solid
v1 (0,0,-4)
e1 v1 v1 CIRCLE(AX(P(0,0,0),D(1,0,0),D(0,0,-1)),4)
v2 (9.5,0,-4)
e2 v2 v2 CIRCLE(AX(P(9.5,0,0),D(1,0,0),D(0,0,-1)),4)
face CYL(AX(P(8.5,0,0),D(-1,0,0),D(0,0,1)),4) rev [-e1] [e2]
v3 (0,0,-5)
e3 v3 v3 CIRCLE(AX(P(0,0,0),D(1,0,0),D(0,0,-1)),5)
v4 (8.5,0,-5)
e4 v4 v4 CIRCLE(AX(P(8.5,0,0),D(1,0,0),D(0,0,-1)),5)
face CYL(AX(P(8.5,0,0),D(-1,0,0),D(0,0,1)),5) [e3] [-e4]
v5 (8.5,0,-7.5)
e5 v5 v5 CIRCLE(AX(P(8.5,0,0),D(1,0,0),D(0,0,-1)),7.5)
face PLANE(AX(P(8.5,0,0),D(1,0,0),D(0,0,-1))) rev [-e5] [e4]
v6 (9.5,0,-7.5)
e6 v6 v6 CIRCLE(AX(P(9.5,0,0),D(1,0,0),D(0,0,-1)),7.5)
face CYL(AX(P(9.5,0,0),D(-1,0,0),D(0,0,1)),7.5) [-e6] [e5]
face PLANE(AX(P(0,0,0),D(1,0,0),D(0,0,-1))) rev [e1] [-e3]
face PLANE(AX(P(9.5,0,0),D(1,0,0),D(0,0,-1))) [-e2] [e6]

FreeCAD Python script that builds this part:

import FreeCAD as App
import Part
import Sketcher
Q = App.Units.Quantity

doc = App.newDocument("Part")
body = doc.addObject("PartDesign::Body", "Body")

# Sketch on YZ plane
sketch1 = doc.addObject("Sketcher::SketchObject", "Sketch")
body.addObject(sketch1)
sketch1.AttachmentSupport = (doc.YZ_Plane, [""])
sketch1.MapMode = "FlatFace"
sketch1.addGeometry([
    Part.Circle(App.Vector(0, 0, 0), App.Vector(0, 0, 1), 5),
    Part.Circle(App.Vector(0, 0, 0), App.Vector(0, 0, 1), 4),
], False)
sketch1.addConstraint([
    Sketcher.Constraint("Coincident", 0, 3, -1, 1),
    Sketcher.Constraint("Coincident", 1, 3, -1, 1),
    Sketcher.Constraint("Diameter", 0, Q("10 mm")),
    Sketcher.Constraint("Diameter", 1, Q("8 mm")),
])
pad1 = doc.addObject("PartDesign::Pad", "Pad")
body.addObject(pad1)
pad1.Profile = sketch1
pad1.Length = 8.5

# Sketch on YZ plane
sketch2 = doc.addObject("Sketcher::SketchObject", "Sketch001")
body.addObject(sketch2)
sketch2.AttachmentSupport = (doc.YZ_Plane, [""])
sketch2.MapMode = "FlatFace"
sketch2.AttachmentOffset = App.Placement(App.Vector(0, 0, 8.5), App.Rotation())
sketch2.addGeometry([
    Part.Circle(App.Vector(0, 0, 0), App.Vector(0, 0, 1), 7.5),
    Part.Circle(App.Vector(0, 0, 0), App.Vector(0, 0, 1), 4),
], False)
sketch2.addConstraint([
    Sketcher.Constraint("Coincident", 0, 3, -1, 1),
    Sketcher.Constraint("Coincident", 1, 3, -1, 1),
    Sketcher.Constraint("Diameter", 0, Q("15 mm")),
    Sketcher.Constraint("Diameter", 1, Q("8 mm")),
])
pad2 = doc.addObject("PartDesign::Pad", "Pad001")
body.addObject(pad2)
pad2.Profile = sketch2
pad2.Length = 1

doc.recompute()
